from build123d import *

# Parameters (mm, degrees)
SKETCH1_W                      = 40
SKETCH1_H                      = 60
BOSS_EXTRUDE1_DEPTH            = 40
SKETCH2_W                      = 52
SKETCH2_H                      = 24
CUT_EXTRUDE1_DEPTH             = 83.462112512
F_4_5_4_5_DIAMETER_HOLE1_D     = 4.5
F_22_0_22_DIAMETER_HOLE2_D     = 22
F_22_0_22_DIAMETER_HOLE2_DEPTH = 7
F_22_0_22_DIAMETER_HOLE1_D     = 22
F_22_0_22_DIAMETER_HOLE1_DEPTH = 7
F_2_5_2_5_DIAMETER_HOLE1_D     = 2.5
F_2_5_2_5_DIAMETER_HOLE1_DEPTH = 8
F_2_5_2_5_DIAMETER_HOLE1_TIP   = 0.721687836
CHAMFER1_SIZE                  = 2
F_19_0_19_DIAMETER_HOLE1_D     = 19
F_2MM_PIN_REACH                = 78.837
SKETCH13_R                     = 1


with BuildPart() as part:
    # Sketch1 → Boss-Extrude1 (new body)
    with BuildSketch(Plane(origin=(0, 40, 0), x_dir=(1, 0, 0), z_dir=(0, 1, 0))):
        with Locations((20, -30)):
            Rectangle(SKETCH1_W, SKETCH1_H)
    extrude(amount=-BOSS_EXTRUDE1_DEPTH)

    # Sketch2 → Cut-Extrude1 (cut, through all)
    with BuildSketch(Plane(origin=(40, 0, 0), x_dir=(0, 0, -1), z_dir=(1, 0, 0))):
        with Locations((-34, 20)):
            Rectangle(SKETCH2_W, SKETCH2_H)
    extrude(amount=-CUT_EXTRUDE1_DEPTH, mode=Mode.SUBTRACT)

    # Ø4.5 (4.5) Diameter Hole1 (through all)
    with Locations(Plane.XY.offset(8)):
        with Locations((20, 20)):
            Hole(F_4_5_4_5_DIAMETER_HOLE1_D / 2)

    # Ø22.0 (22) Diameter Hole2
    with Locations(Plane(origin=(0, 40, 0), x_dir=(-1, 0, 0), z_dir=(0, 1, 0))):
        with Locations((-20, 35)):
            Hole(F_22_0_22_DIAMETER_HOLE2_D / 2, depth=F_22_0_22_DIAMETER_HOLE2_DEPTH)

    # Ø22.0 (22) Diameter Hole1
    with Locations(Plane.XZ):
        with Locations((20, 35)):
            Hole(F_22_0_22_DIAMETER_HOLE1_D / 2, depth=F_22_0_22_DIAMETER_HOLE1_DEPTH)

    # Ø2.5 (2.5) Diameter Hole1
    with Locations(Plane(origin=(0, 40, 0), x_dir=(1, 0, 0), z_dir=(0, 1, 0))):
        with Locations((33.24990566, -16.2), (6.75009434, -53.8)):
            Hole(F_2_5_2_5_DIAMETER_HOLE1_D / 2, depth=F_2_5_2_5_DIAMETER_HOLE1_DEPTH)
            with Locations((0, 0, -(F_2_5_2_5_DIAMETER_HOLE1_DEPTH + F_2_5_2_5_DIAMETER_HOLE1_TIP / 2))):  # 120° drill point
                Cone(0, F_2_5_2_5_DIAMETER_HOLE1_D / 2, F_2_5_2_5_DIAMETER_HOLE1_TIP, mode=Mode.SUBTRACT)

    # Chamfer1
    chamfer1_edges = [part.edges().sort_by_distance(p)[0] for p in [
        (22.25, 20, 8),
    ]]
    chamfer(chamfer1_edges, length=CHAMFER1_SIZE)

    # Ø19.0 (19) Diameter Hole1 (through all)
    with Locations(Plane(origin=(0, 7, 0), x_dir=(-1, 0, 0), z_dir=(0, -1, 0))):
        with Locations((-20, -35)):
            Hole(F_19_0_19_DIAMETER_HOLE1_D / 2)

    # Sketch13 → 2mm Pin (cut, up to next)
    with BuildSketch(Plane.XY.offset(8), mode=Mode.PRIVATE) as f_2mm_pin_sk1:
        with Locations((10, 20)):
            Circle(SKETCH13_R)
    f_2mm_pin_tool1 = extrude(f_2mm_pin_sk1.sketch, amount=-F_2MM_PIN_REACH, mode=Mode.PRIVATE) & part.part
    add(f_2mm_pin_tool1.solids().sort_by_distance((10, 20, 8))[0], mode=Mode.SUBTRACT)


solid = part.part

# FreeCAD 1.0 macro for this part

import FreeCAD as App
import Part
import Sketcher

V = App.Vector


def edges_at(feature, points):
    """Names of the edges that pass closest to the given points."""
    edges = feature.Shape.Edges
    near = lambda p: min(range(len(edges)), key=lambda i: edges[i].distToShape(Part.Vertex(*p))[0])
    return sorted({f"Edge{near(p) + 1}" for p in points})

doc = App.newDocument("Part")
body = doc.addObject("PartDesign::Body", "Body")

sketch1 = body.newObject("Sketcher::SketchObject", "Sketch")
sketch1.AttachmentSupport = (doc.getObject("XZ_Plane"), [""])
sketch1.MapMode = "FlatFace"
sketch1.AttachmentOffset = App.Placement(V(0, 0, -40), App.Rotation())
sketch1.addGeometry([
    Part.LineSegment(V(0, 0, 0), V(0, 60, 0)),
    Part.LineSegment(V(0, 60, 0), V(40, 60, 0)),
    Part.LineSegment(V(40, 60, 0), V(40, 0, 0)),
    Part.LineSegment(V(40, 0, 0), V(0, 0, 0)),
], False)
sketch1.addConstraint([
    Sketcher.Constraint("Coincident", 0, 2, 1, 1),
    Sketcher.Constraint("Coincident", 1, 2, 2, 1),
    Sketcher.Constraint("Coincident", 2, 2, 3, 1),
    Sketcher.Constraint("Coincident", 3, 2, 0, 1),
    Sketcher.Constraint("Vertical", 0),
    Sketcher.Constraint("Horizontal", 1),
    Sketcher.Constraint("Vertical", 2),
    Sketcher.Constraint("Horizontal", 3),
    Sketcher.Constraint("Coincident", 3, 2, -1, 1),
    Sketcher.Constraint("DistanceX", 1, 1, 1, 2, 40.0),
    Sketcher.Constraint("DistanceY", 0, 1, 0, 2, 60.0),
])
pad1 = body.newObject("PartDesign::Pad", "Pad")
pad1.Profile = sketch1
pad1.Length = 40

sketch2 = body.newObject("Sketcher::SketchObject", "Sketch001")
sketch2.AttachmentSupport = (doc.getObject("YZ_Plane"), [""])
sketch2.MapMode = "FlatFace"
sketch2.AttachmentOffset = App.Placement(V(0, 0, 40), App.Rotation())
sketch2.addGeometry([
    Part.LineSegment(V(32, 60, 0), V(8, 60, 0)),
    Part.LineSegment(V(8, 60, 0), V(8, 8, 0)),
    Part.LineSegment(V(8, 8, 0), V(32, 8, 0)),
    Part.LineSegment(V(32, 8, 0), V(32, 60, 0)),
], False)
sketch2.addConstraint([
    Sketcher.Constraint("Coincident", 0, 2, 1, 1),
    Sketcher.Constraint("Coincident", 1, 2, 2, 1),
    Sketcher.Constraint("Coincident", 2, 2, 3, 1),
    Sketcher.Constraint("Coincident", 3, 2, 0, 1),
    Sketcher.Constraint("Horizontal", 0),
    Sketcher.Constraint("Vertical", 1),
    Sketcher.Constraint("Horizontal", 2),
    Sketcher.Constraint("Vertical", 3),
    Sketcher.Constraint("DistanceX", 0, 2, 0, 1, 24.0),
    Sketcher.Constraint("DistanceY", 1, 2, 1, 1, 52.0),
    Sketcher.Constraint("DistanceX", -1, 1, 0, 2, 8.0),
    Sketcher.Constraint("DistanceY", -1, 1, 0, 2, 60.0),
])
pocket1 = body.newObject("PartDesign::Pocket", "Pocket")
pocket1.Profile = sketch2
pocket1.Type = "ThroughAll"

sketch3 = body.newObject("Sketcher::SketchObject", "Sketch002")
sketch3.AttachmentSupport = (doc.getObject("XY_Plane"), [""])
sketch3.MapMode = "FlatFace"
sketch3.AttachmentOffset = App.Placement(V(0, 0, 8), App.Rotation())
sketch3.addGeometry(Part.Circle(V(20, 20, 0), V(0, 0, 1), 2.25), False)
sketch3.addConstraint([
    Sketcher.Constraint("Diameter", 0, 4.5),
    Sketcher.Constraint("DistanceX", -1, 1, 0, 3, 20.0),
    Sketcher.Constraint("DistanceY", -1, 1, 0, 3, 20.0),
])
doc.recompute()
hole = body.newObject("PartDesign::Hole", "Hole")
hole.Profile = sketch3
hole.ThreadType = "None"
hole.Diameter = 4.5
hole.DepthType = "ThroughAll"

sketch4 = body.newObject("Sketcher::SketchObject", "Sketch003")
sketch4.AttachmentSupport = (doc.getObject("XZ_Plane"), [""])
sketch4.MapMode = "FlatFace"
sketch4.AttachmentOffset = App.Placement(V(0, 0, -40), App.Rotation())
sketch4.addGeometry(Part.Circle(V(20, 35, 0), V(0, 0, 1), 11), False)
sketch4.addConstraint([
    Sketcher.Constraint("Diameter", 0, 22.0),
    Sketcher.Constraint("DistanceX", -1, 1, 0, 3, 20.0),
    Sketcher.Constraint("DistanceY", -1, 1, 0, 3, 35.0),
])
doc.recompute()
hole2 = body.newObject("PartDesign::Hole", "Hole001")
hole2.Profile = sketch4
hole2.ThreadType = "None"
hole2.Diameter = 22
hole2.DepthType = "Dimension"
hole2.Depth = 7
hole2.DrillPoint = "Flat"
hole2.Reversed = True

sketch5 = body.newObject("Sketcher::SketchObject", "Sketch004")
sketch5.AttachmentSupport = (doc.getObject("XZ_Plane"), [""])
sketch5.MapMode = "FlatFace"
sketch5.addGeometry(Part.Circle(V(20, 35, 0), V(0, 0, 1), 11), False)
sketch5.addConstraint([
    Sketcher.Constraint("Diameter", 0, 22.0),
    Sketcher.Constraint("DistanceX", -1, 1, 0, 3, 20.0),
    Sketcher.Constraint("DistanceY", -1, 1, 0, 3, 35.0),
])
doc.recompute()
hole3 = body.newObject("PartDesign::Hole", "Hole002")
hole3.Profile = sketch5
hole3.ThreadType = "None"
hole3.Diameter = 22
hole3.DepthType = "Dimension"
hole3.Depth = 7
hole3.DrillPoint = "Flat"

sketch6 = body.newObject("Sketcher::SketchObject", "Sketch005")
sketch6.AttachmentSupport = (doc.getObject("XZ_Plane"), [""])
sketch6.MapMode = "FlatFace"
sketch6.AttachmentOffset = App.Placement(V(0, 0, -40), App.Rotation())
sketch6.addGeometry([
    Part.Circle(V(33.249906, 16.2, 0), V(0, 0, 1), 1.25),
    Part.Circle(V(6.750094, 53.8, 0), V(0, 0, 1), 1.25),
], False)
sketch6.addConstraint([
    Sketcher.Constraint("Equal", 0, 1),
    Sketcher.Constraint("Diameter", 0, 2.5),
    Sketcher.Constraint("DistanceY", -1, 1, 0, 3, 16.2),
    Sketcher.Constraint("DistanceY", -1, 1, 1, 3, 53.8),
    Sketcher.Constraint("DistanceX", 1, 3, 0, 3, 26.499811),
    Sketcher.Constraint("DistanceX", -1, 1, 0, 3, 33.249906),
])
doc.recompute()
hole4 = body.newObject("PartDesign::Hole", "Hole003")
hole4.Profile = sketch6
hole4.ThreadType = "None"
hole4.Diameter = 2.5
hole4.DepthType = "Dimension"
hole4.Depth = 8
hole4.DrillPoint = "Angled"
hole4.DrillPointAngle = 120
hole4.Reversed = True
doc.recompute()

chamfer = body.newObject("PartDesign::Chamfer", "Chamfer")
chamfer.Base = (hole4, edges_at(hole4, [(22.25, 20, 8)]))
chamfer.Size = 2

sketch7 = body.newObject("Sketcher::SketchObject", "Sketch006")
sketch7.AttachmentSupport = (doc.getObject("XZ_Plane"), [""])
sketch7.MapMode = "FlatFace"
sketch7.AttachmentOffset = App.Placement(V(0, 0, -7), App.Rotation())
sketch7.addGeometry(Part.Circle(V(20, 35, 0), V(0, 0, 1), 9.5), False)
sketch7.addConstraint([
    Sketcher.Constraint("Diameter", 0, 19.0),
    Sketcher.Constraint("DistanceX", -1, 1, 0, 3, 20.0),
    Sketcher.Constraint("DistanceY", -1, 1, 0, 3, 35.0),
])
doc.recompute()
hole5 = body.newObject("PartDesign::Hole", "Hole004")
hole5.Profile = sketch7
hole5.ThreadType = "None"
hole5.Diameter = 19
hole5.DepthType = "ThroughAll"

sketch8 = body.newObject("Sketcher::SketchObject", "Sketch007")
sketch8.AttachmentSupport = (doc.getObject("XY_Plane"), [""])
sketch8.MapMode = "FlatFace"
sketch8.AttachmentOffset = App.Placement(V(0, 0, 8), App.Rotation())
sketch8.addGeometry(Part.Circle(V(10, 20, 0), V(0, 0, 1), 1), False)
sketch8.addConstraint([
    Sketcher.Constraint("Diameter", 0, 2.0),
    Sketcher.Constraint("DistanceX", -1, 1, 0, 3, 10.0),
    Sketcher.Constraint("DistanceY", -1, 1, 0, 3, 20.0),
])
pocket2 = body.newObject("PartDesign::Pocket", "Pocket001")
pocket2.Profile = sketch8
pocket2.Type = "UpToFirst"

doc.recompute()
